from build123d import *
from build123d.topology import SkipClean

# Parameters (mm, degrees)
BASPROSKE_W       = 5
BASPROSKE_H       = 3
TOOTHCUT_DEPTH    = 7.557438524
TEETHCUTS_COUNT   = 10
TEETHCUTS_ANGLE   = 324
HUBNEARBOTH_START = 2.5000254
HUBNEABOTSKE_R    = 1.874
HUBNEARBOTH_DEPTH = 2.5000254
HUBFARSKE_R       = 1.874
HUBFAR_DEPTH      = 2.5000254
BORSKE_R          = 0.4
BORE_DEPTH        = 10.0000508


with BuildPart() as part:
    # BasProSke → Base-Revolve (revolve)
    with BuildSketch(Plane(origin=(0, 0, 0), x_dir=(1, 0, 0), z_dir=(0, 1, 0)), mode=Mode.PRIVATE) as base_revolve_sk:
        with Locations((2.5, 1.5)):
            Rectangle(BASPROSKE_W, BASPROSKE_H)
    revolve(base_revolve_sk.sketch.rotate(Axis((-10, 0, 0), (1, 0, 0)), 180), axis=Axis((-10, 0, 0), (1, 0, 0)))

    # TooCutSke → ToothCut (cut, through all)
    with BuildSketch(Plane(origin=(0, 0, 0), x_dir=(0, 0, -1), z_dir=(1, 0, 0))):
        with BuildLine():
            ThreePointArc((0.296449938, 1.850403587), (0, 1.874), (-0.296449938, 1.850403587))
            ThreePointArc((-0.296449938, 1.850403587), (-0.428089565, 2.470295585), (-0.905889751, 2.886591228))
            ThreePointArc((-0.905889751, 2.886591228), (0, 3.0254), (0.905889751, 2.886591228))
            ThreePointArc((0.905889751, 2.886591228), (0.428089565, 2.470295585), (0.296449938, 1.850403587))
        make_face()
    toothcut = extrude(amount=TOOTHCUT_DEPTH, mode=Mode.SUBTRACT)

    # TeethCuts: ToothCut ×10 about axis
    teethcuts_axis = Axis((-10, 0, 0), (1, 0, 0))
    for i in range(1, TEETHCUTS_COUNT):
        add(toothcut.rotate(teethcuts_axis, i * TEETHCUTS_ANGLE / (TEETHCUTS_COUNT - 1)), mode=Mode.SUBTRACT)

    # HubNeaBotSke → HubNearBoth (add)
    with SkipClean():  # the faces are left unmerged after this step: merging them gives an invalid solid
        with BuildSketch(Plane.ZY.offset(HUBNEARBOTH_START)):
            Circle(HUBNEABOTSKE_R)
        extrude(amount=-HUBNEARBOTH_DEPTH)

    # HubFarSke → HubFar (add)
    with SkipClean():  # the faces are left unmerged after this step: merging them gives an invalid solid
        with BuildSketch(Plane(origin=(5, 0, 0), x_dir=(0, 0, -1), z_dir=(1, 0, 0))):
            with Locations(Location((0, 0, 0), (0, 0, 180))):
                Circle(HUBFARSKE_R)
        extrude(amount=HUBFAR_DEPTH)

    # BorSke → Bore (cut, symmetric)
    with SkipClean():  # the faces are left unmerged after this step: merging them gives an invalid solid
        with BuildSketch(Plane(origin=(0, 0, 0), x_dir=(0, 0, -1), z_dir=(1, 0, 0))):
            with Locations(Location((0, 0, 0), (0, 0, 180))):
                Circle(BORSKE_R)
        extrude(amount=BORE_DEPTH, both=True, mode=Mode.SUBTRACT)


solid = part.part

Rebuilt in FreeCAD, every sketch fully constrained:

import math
import FreeCAD as App
import Part
import Sketcher

V = App.Vector


def add_polygon(sketch, points):
    """Adds a closed chain of lines whose ends are joined by coincident constraints."""
    first, n = sketch.GeometryCount, len(points)
    for a, b in zip(points, points[1:] + points[:1]):
        sketch.addGeometry(Part.LineSegment(App.Vector(*a, 0), App.Vector(*b, 0)), False)
    for i in range(n):
        sketch.addConstraint(Sketcher.Constraint("Coincident", first + i, 2, first + (i + 1) % n, 1))

doc = App.newDocument("Part")
params = doc.addObject("Spreadsheet::Sheet", "Params")
for row, (alias, value) in enumerate([
    ("sketch1_width", "5 mm"),
    ("sketch1_height", "3 mm"),
    ("revolution_angle", "360 deg"),
    ("sketch2_radius", "1 mm"),
    ("pad1_length", "2.500025 mm"),
    ("pad2_length", "2.500025 mm"),
    ("sketch5_diameter", "0.8 mm"),
    ("pocket2_length", "20.000102 mm"),
], start=1):
    params.set(f"A{row}", alias)
    params.set(f"B{row}", "=" + value)
    params.setAlias(f"B{row}", alias)

body = doc.addObject("PartDesign::Body", "Body")

sketch1 = body.newObject("Sketcher::SketchObject", "Sketch")
sketch1.AttachmentSupport = (doc.getObject("XZ_Plane"), [""])
sketch1.MapMode = "FlatFace"
add_polygon(sketch1, [(0, -3), (0, 0), (5, 0), (5, -3)])
sketch1.addConstraint([
    Sketcher.Constraint("Vertical", 0),
    Sketcher.Constraint("Horizontal", 1),
    Sketcher.Constraint("Vertical", 2),
    Sketcher.Constraint("Horizontal", 3),
    Sketcher.Constraint("Coincident", 0, 2, -1, 1),
    Sketcher.Constraint("DistanceX", 1, 1, 1, 2, 5.0),
    Sketcher.Constraint("DistanceY", 0, 1, 0, 2, 3.0),
])
sketch1.setExpression("Constraints[9]", "Params.sketch1_width")
sketch1.setExpression("Constraints[10]", "Params.sketch1_height")
revolution = body.newObject("PartDesign::Revolution", "Revolution")
revolution.Profile = sketch1
revolution.ReferenceAxis = (sketch1, ["H_Axis"])
revolution.setExpression("Angle", "Params.revolution_angle")

sketch2 = body.newObject("Sketcher::SketchObject", "Sketch001")
sketch2.AttachmentSupport = (doc.getObject("YZ_Plane"), [""])
sketch2.MapMode = "FlatFace"
sketch2.addGeometry([
    Part.ArcOfCircle(Part.Circle(V(0, 0, 0), V(0, 0, 1), 1.9), math.radians(-9.1), math.radians(9.1)),
    Part.ArcOfCircle(Part.Circle(V(2, -1.3, 0), V(0, 0, 1), 1), math.radians(23), math.radians(96)),
    Part.ArcOfCircle(Part.Circle(V(0, 0, 0), V(0, 0, 1), 3), math.radians(-17), math.radians(17)),
    Part.ArcOfCircle(Part.Circle(V(2, 1.3, 0), V(0, 0, 1), 1), math.radians(-96), math.radians(-23)),
], False)
sketch2.addConstraint([
    Sketcher.Constraint("Coincident", 0, 1, 1, 2),
    Sketcher.Constraint("Coincident", 1, 1, 2, 1),
    Sketcher.Constraint("Coincident", 2, 2, 3, 2),
    Sketcher.Constraint("Coincident", 3, 1, 0, 2),
    Sketcher.Constraint("Coincident", 0, 3, -1, 1),
    Sketcher.Constraint("Coincident", 2, 3, -1, 1),
    Sketcher.Constraint("Equal", 1, 3),
    Sketcher.Constraint("Symmetric", 1, 3, 3, 3, -1),
    Sketcher.Constraint("Radius", 1, 1.0),
    Sketcher.Constraint("Radius", 0, 1.874),
    Sketcher.Constraint("Radius", 2, 3.0254),
    Sketcher.Constraint("DistanceY", 0, 1, 3, 1, 0.5929),
    Sketcher.Constraint("DistanceX", -1, 1, 1, 1, 2.886591),
])
sketch2.setExpression("Constraints[8]", "Params.sketch2_radius")
pocket1 = body.newObject("PartDesign::Pocket", "Pocket")
pocket1.Profile = sketch2
pocket1.Type = "ThroughAll"
pocket1.Reversed = True
doc.recompute()

polarpattern = body.newObject("PartDesign::PolarPattern", "PolarPattern")
polarpattern.Originals = [pocket1]
polarpattern.Axis = (doc.getObject("X_Axis"), [""])
polarpattern.Angle = 360
polarpattern.Occurrences = 10
body.Tip = polarpattern

sketch3 = body.newObject("Sketcher::SketchObject", "Sketch002")
sketch3.AttachmentSupport = (doc.getObject("YZ_Plane"), [""])
sketch3.MapMode = "FlatFace"
sketch3.AttachmentOffset = App.Placement(V(0, 0, -2.500025), App.Rotation())
sketch3.addGeometry(Part.Circle(V(0, 0, 0), V(0, 0, 1), 1.9), False)
sketch3.addConstraint([
    Sketcher.Constraint("Coincident", 0, 3, -1, 1),
    Sketcher.Constraint("Diameter", 0, 3.748),
])
pad1 = body.newObject("PartDesign::Pad", "Pad")
pad1.Profile = sketch3
pad1.setExpression("Length", "Params.pad1_length")

sketch4 = body.newObject("Sketcher::SketchObject", "Sketch003")
sketch4.AttachmentSupport = (doc.getObject("YZ_Plane"), [""])
sketch4.MapMode = "FlatFace"
sketch4.AttachmentOffset = App.Placement(V(0, 0, 5), App.Rotation())
sketch4.addGeometry(Part.Circle(V(0, 0, 0), V(0, 0, 1), 1.9), False)
sketch4.addConstraint([
    Sketcher.Constraint("Coincident", 0, 3, -1, 1),
    Sketcher.Constraint("Diameter", 0, 3.748),
])
pad2 = body.newObject("PartDesign::Pad", "Pad001")
pad2.Profile = sketch4
pad2.setExpression("Length", "Params.pad2_length")

sketch5 = body.newObject("Sketcher::SketchObject", "Sketch004")
sketch5.AttachmentSupport = (doc.getObject("YZ_Plane"), [""])
sketch5.MapMode = "FlatFace"
sketch5.addGeometry(Part.Circle(V(0, 0, 0), V(0, 0, 1), 0.4), False)
sketch5.addConstraint([
    Sketcher.Constraint("Coincident", 0, 3, -1, 1),
    Sketcher.Constraint("Diameter", 0, 0.8),
])
sketch5.setExpression("Constraints[1]", "Params.sketch5_diameter")
pocket2 = body.newObject("PartDesign::Pocket", "Pocket001")
pocket2.Profile = sketch5
pocket2.setExpression("Length", "Params.pocket2_length")
pocket2.Midplane = True

doc.recompute()
